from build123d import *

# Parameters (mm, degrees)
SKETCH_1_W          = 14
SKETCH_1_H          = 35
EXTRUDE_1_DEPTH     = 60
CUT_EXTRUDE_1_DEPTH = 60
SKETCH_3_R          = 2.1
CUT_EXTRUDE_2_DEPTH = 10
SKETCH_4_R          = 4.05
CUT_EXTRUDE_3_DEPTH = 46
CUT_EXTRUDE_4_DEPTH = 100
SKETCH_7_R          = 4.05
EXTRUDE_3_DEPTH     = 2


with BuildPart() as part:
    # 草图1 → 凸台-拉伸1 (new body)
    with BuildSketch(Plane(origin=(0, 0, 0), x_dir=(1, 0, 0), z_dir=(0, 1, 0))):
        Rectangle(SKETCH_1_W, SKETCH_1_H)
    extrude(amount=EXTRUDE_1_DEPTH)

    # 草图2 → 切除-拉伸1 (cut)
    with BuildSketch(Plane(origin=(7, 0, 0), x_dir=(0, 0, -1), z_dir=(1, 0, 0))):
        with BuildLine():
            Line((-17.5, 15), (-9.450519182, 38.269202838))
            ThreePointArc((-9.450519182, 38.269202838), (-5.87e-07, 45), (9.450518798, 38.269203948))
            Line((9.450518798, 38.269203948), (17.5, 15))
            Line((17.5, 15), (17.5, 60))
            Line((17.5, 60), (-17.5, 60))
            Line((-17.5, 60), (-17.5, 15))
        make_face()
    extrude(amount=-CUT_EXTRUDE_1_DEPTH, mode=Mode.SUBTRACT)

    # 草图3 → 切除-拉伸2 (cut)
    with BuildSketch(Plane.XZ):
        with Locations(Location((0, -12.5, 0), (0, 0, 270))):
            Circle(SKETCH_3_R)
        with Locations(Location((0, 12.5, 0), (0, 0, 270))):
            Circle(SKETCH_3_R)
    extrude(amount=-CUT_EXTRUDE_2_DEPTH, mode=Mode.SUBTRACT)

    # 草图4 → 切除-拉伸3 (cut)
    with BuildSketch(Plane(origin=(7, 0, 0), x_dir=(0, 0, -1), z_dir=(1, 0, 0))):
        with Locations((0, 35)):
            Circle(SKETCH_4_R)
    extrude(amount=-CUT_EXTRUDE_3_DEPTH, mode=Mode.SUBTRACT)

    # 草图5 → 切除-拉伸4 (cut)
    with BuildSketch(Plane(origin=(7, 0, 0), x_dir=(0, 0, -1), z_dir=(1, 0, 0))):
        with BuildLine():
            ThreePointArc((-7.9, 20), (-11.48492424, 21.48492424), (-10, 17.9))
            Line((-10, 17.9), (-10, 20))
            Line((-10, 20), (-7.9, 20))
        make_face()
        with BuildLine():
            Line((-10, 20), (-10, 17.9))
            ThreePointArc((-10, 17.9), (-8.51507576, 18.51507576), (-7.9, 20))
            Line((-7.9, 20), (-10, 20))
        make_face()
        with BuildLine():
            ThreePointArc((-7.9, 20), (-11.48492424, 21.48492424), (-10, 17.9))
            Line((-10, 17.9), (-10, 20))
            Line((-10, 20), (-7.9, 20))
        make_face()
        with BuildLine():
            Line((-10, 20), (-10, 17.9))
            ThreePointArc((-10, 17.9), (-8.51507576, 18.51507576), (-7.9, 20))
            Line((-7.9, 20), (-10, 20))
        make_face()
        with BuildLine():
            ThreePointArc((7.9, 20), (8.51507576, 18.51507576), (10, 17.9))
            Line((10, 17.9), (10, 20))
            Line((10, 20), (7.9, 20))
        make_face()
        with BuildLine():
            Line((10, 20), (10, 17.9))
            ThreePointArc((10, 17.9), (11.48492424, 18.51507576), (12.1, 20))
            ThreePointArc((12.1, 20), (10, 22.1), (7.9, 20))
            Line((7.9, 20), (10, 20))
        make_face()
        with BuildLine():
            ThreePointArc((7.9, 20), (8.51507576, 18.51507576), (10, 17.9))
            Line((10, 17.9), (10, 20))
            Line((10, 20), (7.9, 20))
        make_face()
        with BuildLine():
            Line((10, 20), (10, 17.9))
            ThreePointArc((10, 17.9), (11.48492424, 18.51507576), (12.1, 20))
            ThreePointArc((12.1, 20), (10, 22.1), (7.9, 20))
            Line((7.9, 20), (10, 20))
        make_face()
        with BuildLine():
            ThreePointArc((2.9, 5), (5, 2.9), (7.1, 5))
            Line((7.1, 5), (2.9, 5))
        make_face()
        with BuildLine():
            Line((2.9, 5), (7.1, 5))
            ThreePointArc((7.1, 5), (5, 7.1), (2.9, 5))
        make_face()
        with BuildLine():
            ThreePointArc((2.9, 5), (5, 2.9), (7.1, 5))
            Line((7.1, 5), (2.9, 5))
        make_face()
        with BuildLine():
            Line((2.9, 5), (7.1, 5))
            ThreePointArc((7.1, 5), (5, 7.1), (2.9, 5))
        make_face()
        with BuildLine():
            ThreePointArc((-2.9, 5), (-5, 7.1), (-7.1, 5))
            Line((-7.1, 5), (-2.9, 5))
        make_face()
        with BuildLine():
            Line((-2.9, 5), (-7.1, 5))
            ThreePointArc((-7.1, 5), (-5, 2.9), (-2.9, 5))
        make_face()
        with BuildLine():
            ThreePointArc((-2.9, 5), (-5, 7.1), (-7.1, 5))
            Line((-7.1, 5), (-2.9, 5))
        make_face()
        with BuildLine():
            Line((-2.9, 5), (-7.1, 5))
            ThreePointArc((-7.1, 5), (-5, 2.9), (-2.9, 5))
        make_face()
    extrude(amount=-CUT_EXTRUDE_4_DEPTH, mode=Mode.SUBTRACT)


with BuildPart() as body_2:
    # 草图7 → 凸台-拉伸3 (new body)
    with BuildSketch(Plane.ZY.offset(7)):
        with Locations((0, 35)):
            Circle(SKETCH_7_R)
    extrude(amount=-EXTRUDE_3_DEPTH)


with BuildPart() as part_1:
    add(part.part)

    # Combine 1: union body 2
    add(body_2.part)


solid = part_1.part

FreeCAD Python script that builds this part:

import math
import FreeCAD as App
import Part
import Sketcher


def add_polygon(sketch, points):
    """Adds a closed chain of lines whose ends are joined by coincident constraints."""
    first, n = sketch.GeometryCount, len(points)
    for a, b in zip(points, points[1:] + points[:1]):
        sketch.addGeometry(Part.LineSegment(App.Vector(*a, 0), App.Vector(*b, 0)), False)
    for i in range(n):
        sketch.addConstraint(Sketcher.Constraint("Coincident", first + i, 2, first + (i + 1) % n, 1))

doc = App.newDocument("Part")
params = doc.addObject("Spreadsheet::Sheet", "Params")
for row, (alias, value) in enumerate([
    ("sketch1_width", "14 mm"),
    ("sketch1_height", "35 mm"),
    ("pad1_length", "60 mm"),
    ("sketch2_radius", "10 mm"),
    ("sketch2_width", "45 mm"),
    ("sketch2_height", "35 mm"),
    ("pocket1_length", "60 mm"),
    ("sketch3_diameter", "4.2 mm"),
    ("pocket2_length", "10 mm"),
    ("sketch4_diameter", "8.1 mm"),
    ("pocket3_length", "46 mm"),
    ("sketch5_diameter", "4.2 mm"),
    ("pocket4_length", "100 mm"),
    ("sketch6_diameter", "8.1 mm"),
    ("pad2_length", "2 mm"),
], start=1):
    params.set(f"A{row}", alias)
    params.set(f"B{row}", "=" + value)
    params.setAlias(f"B{row}", alias)

body = doc.addObject("PartDesign::Body", "Body")

# Sketch on XZ plane
sketch1 = body.newObject("Sketcher::SketchObject", "Sketch")
sketch1.AttachmentSupport = (doc.getObject("XZ_Plane"), [""])
sketch1.MapMode = "FlatFace"
add_polygon(sketch1, [(-7, -18), (-7, 18), (7, 18), (7, -18)])  # lines 0-3
sketch1.addConstraint(Sketcher.Constraint("Vertical", 0))
sketch1.addConstraint(Sketcher.Constraint("Horizontal", 1))
sketch1.addConstraint(Sketcher.Constraint("Vertical", 2))
sketch1.addConstraint(Sketcher.Constraint("Horizontal", 3))
sketch1.addConstraint(Sketcher.Constraint("Symmetric", 0, 2, 2, 2, -1, 1))
sketch1.addConstraint(Sketcher.Constraint("DistanceX", 1, 1, 1, 2, 14.0))
sketch1.addConstraint(Sketcher.Constraint("DistanceY", 0, 1, 0, 2, 35.0))
sketch1.setExpression("Constraints[9]", "Params.sketch1_width")
sketch1.setExpression("Constraints[10]", "Params.sketch1_height")
pad1 = body.newObject("PartDesign::Pad", "Pad")
pad1.Profile = sketch1
pad1.setExpression("Length", "Params.pad1_length")
pad1.Reversed = True

# Sketch on YZ plane
sketch2 = body.newObject("Sketcher::SketchObject", "Sketch001")
sketch2.AttachmentSupport = (doc.getObject("YZ_Plane"), [""])
sketch2.MapMode = "FlatFace"
sketch2.AttachmentOffset = App.Placement(App.Vector(0, 0, 7), App.Rotation())
sketch2.addGeometry(Part.LineSegment(App.Vector(15, 18, 0), App.Vector(38, 9, 0)), False)
sketch2.addGeometry(Part.ArcOfCircle(Part.Circle(App.Vector(35, 0, 0), App.Vector(0, 0, 1), 10), math.radians(-71), math.radians(71)), False)
sketch2.addGeometry(Part.LineSegment(App.Vector(38, -9, 0), App.Vector(15, -18, 0)), False)
sketch2.addGeometry(Part.LineSegment(App.Vector(15, -18, 0), App.Vector(60, -18, 0)), False)
sketch2.addGeometry(Part.LineSegment(App.Vector(60, -18, 0), App.Vector(60, 18, 0)), False)
sketch2.addGeometry(Part.LineSegment(App.Vector(60, 18, 0), App.Vector(15, 18, 0)), False)
sketch2.addConstraint(Sketcher.Constraint("Tangent", 0, 2, 1, 2))
sketch2.addConstraint(Sketcher.Constraint("Tangent", 1, 1, 2, 1))
sketch2.addConstraint(Sketcher.Constraint("Coincident", 2, 2, 3, 1))
sketch2.addConstraint(Sketcher.Constraint("Coincident", 3, 2, 4, 1))
sketch2.addConstraint(Sketcher.Constraint("Coincident", 4, 2, 5, 1))
sketch2.addConstraint(Sketcher.Constraint("Coincident", 5, 2, 0, 1))
sketch2.addConstraint(Sketcher.Constraint("Horizontal", 3))
sketch2.addConstraint(Sketcher.Constraint("Vertical", 4))
sketch2.addConstraint(Sketcher.Constraint("Horizontal", 5))
sketch2.addConstraint(Sketcher.Constraint("Symmetric", 0, 2, 1, 1, -1))
sketch2.addConstraint(Sketcher.Constraint("Vertical", 2, 2, 5, 2))
sketch2.addConstraint(Sketcher.Constraint("Radius", 1, 10.0))
sketch2.addConstraint(Sketcher.Constraint("DistanceX", 3, 1, 3, 2, 45.0))
sketch2.addConstraint(Sketcher.Constraint("DistanceY", 4, 1, 4, 2, 35.0))
sketch2.addConstraint(Sketcher.Constraint("DistanceX", -1, 1, 1, 3, 35.0))
sketch2.addConstraint(Sketcher.Constraint("DistanceX", -1, 1, 2, 2, 15.0))
sketch2.setExpression("Constraints[11]", "Params.sketch2_radius")
sketch2.setExpression("Constraints[12]", "Params.sketch2_width")
sketch2.setExpression("Constraints[13]", "Params.sketch2_height")
pocket1 = body.newObject("PartDesign::Pocket", "Pocket")
pocket1.Profile = sketch2
pocket1.setExpression("Length", "Params.pocket1_length")

# Sketch on XZ plane
sketch3 = body.newObject("Sketcher::SketchObject", "Sketch002")
sketch3.AttachmentSupport = (doc.getObject("XZ_Plane"), [""])
sketch3.MapMode = "FlatFace"
sketch3.addGeometry(Part.Circle(App.Vector(0, -12.5, 0), App.Vector(0, 0, 1), 2.1), False)
sketch3.addGeometry(Part.Circle(App.Vector(0, 12.5, 0), App.Vector(0, 0, 1), 2.1), False)
sketch3.addConstraint(Sketcher.Constraint("Equal", 0, 1))
sketch3.addConstraint(Sketcher.Constraint("Symmetric", 0, 3, 1, 3, -1, 1))
sketch3.addConstraint(Sketcher.Constraint("PointOnObject", 0, 3, -2))
sketch3.addConstraint(Sketcher.Constraint("Diameter", 0, 4.2))
sketch3.addConstraint(Sketcher.Constraint("DistanceY", 0, 3, 1, 3, 25.0))
sketch3.setExpression("Constraints[3]", "Params.sketch3_diameter")
pocket2 = body.newObject("PartDesign::Pocket", "Pocket001")
pocket2.Profile = sketch3
pocket2.setExpression("Length", "Params.pocket2_length")

# Sketch on YZ plane
sketch4 = body.newObject("Sketcher::SketchObject", "Sketch003")
sketch4.AttachmentSupport = (doc.getObject("YZ_Plane"), [""])
sketch4.MapMode = "FlatFace"
sketch4.AttachmentOffset = App.Placement(App.Vector(0, 0, 7), App.Rotation())
sketch4.addGeometry(Part.Circle(App.Vector(35, 0, 0), App.Vector(0, 0, 1), 4), False)
sketch4.addConstraint(Sketcher.Constraint("PointOnObject", 0, 3, -1))
sketch4.addConstraint(Sketcher.Constraint("Diameter", 0, 8.1))
sketch4.addConstraint(Sketcher.Constraint("DistanceX", -1, 1, 0, 3, 35.0))
sketch4.setExpression("Constraints[1]", "Params.sketch4_diameter")
pocket3 = body.newObject("PartDesign::Pocket", "Pocket002")
pocket3.Profile = sketch4
pocket3.setExpression("Length", "Params.pocket3_length")

# Sketch on YZ plane
sketch5 = body.newObject("Sketcher::SketchObject", "Sketch004")
sketch5.AttachmentSupport = (doc.getObject("YZ_Plane"), [""])
sketch5.MapMode = "FlatFace"
sketch5.AttachmentOffset = App.Placement(App.Vector(0, 0, 7), App.Rotation())
sketch5.addGeometry(Part.ArcOfCircle(Part.Circle(App.Vector(20, 10, 0), App.Vector(0, 0, 1), 2.1), math.radians(-90), math.radians(180)), False)
sketch5.addGeometry(Part.ArcOfCircle(Part.Circle(App.Vector(20, 10, 0), App.Vector(0, 0, 1), 2.1), math.radians(-180), math.radians(-90)), False)
sketch5.addGeometry(Part.ArcOfCircle(Part.Circle(App.Vector(20, -10, 0), App.Vector(0, 0, 1), 2.1), math.radians(90), math.radians(180)), False)
sketch5.addGeometry(Part.ArcOfCircle(Part.Circle(App.Vector(20, -10, 0), App.Vector(0, 0, 1), 2.1), math.radians(-180), math.radians(-90)), False)
sketch5.addGeometry(Part.ArcOfCircle(Part.Circle(App.Vector(20, -10, 0), App.Vector(0, 0, 1), 2.1), math.radians(-90), math.radians(90)), False)
sketch5.addGeometry(Part.Circle(App.Vector(5, -5, 0), App.Vector(0, 0, 1), 2.1), False)
sketch5.addGeometry(Part.Circle(App.Vector(5, 5, 0), App.Vector(0, 0, 1), 2.1), False)
sketch5.addConstraint(Sketcher.Constraint("Tangent", 0, 1, 1, 2))
sketch5.addConstraint(Sketcher.Constraint("Coincident", 1, 1, 0, 2))
sketch5.addConstraint(Sketcher.Constraint("Tangent", 2, 2, 3, 1))
sketch5.addConstraint(Sketcher.Constraint("Tangent", 3, 2, 4, 1))
sketch5.addConstraint(Sketcher.Constraint("Tangent", 4, 2, 2, 1))
sketch5.addConstraint(Sketcher.Constraint("Equal", 1, 2))
sketch5.addConstraint(Sketcher.Constraint("Equal", 4, 5))
sketch5.addConstraint(Sketcher.Constraint("Equal", 5, 6))
sketch5.addConstraint(Sketcher.Constraint("Symmetric", 0, 3, 2, 3, -1))
sketch5.addConstraint(Sketcher.Constraint("Symmetric", 5, 3, 6, 3, -1))
sketch5.addConstraint(Sketcher.Constraint("Horizontal", 0, 3, 1, 1))
sketch5.addConstraint(Sketcher.Constraint("Horizontal", 4, 3, 2, 2))
sketch5.addConstraint(Sketcher.Constraint("Vertical", 4, 3, 0, 1))
sketch5.addConstraint(Sketcher.Constraint("Vertical", 0, 1, 3, 2))
sketch5.addConstraint(Sketcher.Constraint("Vertical", 3, 2, 4, 2))
sketch5.addConstraint(Sketcher.Constraint("Diameter", 5, 4.2))
sketch5.addConstraint(Sketcher.Constraint("DistanceX", -1, 1, 0, 3, 20.0))
sketch5.addConstraint(Sketcher.Constraint("DistanceY", -1, 1, 0, 3, 10.0))
sketch5.addConstraint(Sketcher.Constraint("DistanceX", -1, 1, 5, 3, 5.0))
sketch5.addConstraint(Sketcher.Constraint("DistanceY", 5, 3, -1, 1, 5.0))
sketch5.setExpression("Constraints[15]", "Params.sketch5_diameter")
pocket4 = body.newObject("PartDesign::Pocket", "Pocket003")
pocket4.Profile = sketch5
pocket4.setExpression("Length", "Params.pocket4_length")
body2 = doc.addObject("PartDesign::Body", "Body001")

# Sketch on YZ plane
sketch6 = body2.newObject("Sketcher::SketchObject", "Sketch005")
sketch6.AttachmentSupport = (doc.getObject("YZ_Plane001"), [""])
sketch6.MapMode = "FlatFace"
sketch6.AttachmentOffset = App.Placement(App.Vector(0, 0, -7), App.Rotation())
sketch6.addGeometry(Part.Circle(App.Vector(35, 0, 0), App.Vector(0, 0, 1), 4), False)
sketch6.addConstraint(Sketcher.Constraint("PointOnObject", 0, 3, -1))
sketch6.addConstraint(Sketcher.Constraint("Diameter", 0, 8.1))
sketch6.addConstraint(Sketcher.Constraint("DistanceX", -1, 1, 0, 3, 35.0))
sketch6.setExpression("Constraints[1]", "Params.sketch6_diameter")
pad2 = body2.newObject("PartDesign::Pad", "Pad001")
pad2.Profile = sketch6
pad2.setExpression("Length", "Params.pad2_length")
doc.recompute()

boolean = body.newObject("PartDesign::Boolean", "Boolean")
boolean.Type = "Fuse"
boolean.addObjects([body2])

doc.recompute()
